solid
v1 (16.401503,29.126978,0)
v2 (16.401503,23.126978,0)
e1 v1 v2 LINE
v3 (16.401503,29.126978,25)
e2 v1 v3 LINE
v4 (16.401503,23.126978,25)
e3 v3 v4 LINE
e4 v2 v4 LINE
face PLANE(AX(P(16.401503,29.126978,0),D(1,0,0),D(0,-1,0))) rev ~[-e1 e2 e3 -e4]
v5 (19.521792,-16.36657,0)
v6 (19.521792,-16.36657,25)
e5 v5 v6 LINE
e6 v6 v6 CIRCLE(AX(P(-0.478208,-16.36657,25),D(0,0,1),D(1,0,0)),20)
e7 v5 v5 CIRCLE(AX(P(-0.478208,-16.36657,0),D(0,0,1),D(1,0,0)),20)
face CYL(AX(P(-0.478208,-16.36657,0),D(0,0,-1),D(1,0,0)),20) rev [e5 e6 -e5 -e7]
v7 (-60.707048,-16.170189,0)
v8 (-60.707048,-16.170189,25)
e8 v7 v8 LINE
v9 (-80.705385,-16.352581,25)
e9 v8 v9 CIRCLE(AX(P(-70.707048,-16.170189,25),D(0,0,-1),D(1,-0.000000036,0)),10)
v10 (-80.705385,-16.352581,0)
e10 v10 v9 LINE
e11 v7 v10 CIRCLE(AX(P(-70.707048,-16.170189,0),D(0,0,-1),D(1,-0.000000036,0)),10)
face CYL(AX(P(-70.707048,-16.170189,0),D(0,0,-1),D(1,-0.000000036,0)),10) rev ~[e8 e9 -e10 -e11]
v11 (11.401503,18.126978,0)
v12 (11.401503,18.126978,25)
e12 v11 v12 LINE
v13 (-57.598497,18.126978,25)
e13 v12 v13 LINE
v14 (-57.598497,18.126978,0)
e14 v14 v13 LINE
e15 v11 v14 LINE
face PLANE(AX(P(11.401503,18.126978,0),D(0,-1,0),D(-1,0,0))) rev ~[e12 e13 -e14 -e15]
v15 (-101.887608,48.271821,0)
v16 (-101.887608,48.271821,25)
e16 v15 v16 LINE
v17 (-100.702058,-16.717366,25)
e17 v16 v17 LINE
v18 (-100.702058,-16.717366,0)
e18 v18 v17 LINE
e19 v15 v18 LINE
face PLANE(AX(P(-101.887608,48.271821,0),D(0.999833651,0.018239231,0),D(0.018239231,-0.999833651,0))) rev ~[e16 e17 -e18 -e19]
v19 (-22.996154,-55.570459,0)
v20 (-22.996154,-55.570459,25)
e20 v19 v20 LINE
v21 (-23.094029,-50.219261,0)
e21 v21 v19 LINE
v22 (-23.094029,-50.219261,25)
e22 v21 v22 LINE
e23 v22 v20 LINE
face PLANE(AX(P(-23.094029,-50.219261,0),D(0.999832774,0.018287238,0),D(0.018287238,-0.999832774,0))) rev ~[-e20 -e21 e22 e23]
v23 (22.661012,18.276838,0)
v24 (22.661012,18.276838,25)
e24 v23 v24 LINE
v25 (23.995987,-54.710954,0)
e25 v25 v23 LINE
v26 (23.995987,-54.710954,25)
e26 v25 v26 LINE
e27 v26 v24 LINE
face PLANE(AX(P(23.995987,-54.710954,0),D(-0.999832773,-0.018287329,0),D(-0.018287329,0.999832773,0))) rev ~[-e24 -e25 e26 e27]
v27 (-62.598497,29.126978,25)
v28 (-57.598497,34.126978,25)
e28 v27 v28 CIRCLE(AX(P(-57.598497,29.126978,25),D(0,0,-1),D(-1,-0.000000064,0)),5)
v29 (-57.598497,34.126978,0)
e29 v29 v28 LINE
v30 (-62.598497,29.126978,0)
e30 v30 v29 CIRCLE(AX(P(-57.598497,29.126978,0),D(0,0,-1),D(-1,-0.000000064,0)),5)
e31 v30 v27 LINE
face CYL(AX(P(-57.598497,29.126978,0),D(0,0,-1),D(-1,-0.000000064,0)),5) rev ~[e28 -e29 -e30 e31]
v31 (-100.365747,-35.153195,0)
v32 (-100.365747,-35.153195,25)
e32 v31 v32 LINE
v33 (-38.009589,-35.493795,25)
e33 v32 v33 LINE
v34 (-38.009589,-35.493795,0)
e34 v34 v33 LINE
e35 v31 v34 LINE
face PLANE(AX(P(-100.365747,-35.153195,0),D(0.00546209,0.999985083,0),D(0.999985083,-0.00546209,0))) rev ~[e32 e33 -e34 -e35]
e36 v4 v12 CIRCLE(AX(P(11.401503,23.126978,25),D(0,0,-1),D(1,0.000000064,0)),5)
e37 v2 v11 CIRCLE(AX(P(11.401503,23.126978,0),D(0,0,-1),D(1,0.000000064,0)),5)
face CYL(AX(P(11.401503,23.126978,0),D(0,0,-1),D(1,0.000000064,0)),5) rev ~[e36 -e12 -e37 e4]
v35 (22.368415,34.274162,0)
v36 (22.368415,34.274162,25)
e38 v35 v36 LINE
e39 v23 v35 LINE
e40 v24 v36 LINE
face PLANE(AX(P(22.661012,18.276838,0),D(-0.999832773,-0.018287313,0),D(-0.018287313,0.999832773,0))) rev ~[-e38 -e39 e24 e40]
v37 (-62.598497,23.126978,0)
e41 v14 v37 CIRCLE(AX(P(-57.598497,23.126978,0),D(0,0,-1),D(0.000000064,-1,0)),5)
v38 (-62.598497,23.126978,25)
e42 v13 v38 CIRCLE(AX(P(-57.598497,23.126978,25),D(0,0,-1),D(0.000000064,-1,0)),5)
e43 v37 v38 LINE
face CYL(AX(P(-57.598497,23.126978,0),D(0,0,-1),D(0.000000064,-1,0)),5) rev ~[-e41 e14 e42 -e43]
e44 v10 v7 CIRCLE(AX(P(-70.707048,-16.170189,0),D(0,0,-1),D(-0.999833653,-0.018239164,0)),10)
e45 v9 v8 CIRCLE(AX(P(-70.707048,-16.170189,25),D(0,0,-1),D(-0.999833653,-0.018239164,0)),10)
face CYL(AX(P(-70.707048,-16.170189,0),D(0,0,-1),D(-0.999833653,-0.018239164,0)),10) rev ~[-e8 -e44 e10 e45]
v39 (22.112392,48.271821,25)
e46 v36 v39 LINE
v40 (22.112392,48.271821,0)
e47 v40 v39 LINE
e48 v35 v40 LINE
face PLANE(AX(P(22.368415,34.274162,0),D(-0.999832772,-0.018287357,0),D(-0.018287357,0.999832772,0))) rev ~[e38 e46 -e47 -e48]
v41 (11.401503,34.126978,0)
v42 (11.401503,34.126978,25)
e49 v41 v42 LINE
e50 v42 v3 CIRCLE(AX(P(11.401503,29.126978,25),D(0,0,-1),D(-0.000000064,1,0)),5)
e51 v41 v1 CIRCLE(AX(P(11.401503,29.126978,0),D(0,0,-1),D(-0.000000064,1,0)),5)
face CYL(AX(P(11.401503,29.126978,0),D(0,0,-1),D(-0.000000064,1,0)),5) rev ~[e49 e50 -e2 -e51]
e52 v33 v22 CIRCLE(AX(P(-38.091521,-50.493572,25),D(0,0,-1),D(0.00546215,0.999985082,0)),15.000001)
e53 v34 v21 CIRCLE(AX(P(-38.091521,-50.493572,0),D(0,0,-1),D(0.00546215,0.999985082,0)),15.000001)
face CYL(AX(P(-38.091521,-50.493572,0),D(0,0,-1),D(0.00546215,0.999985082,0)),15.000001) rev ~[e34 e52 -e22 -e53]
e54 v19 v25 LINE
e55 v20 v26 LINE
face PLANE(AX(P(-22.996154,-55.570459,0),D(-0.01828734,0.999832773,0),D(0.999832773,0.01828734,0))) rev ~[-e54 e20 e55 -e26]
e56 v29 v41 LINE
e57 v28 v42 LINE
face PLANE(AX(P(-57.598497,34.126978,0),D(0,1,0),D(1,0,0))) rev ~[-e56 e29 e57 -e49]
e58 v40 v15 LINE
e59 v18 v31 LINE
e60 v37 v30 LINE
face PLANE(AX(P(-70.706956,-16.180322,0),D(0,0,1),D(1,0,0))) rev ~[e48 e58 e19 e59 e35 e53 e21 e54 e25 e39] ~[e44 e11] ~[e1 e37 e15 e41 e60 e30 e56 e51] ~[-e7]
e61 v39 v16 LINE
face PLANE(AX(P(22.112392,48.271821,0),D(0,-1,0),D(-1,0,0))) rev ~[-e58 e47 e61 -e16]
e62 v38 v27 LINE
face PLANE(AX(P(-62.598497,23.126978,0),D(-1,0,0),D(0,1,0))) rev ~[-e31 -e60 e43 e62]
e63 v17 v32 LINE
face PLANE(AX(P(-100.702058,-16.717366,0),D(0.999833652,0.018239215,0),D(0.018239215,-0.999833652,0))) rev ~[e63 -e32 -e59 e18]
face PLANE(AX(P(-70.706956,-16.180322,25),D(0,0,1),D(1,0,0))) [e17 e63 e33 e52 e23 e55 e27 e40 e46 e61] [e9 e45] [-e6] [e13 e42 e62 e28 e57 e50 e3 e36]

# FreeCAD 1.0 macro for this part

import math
import FreeCAD as App
import Part
import Sketcher
from FreeCAD import Vector
Q = App.Units.Quantity

doc = App.newDocument("Part")
body = doc.addObject("PartDesign::Body", "Body")

sketch1 = doc.addObject("Sketcher::SketchObject", "Sketch")
body.addObject(sketch1)
sketch1.AttachmentSupport = (doc.XY_Plane, [""])
sketch1.MapMode = "FlatFace"
sketch1.addGeometry(Part.LineSegment(Vector(-101.9, 48.3, 0), Vector(-100.7, -16.7, 0)), False)
sketch1.addGeometry(Part.LineSegment(Vector(-100.7, -16.7, 0), Vector(-100.4, -35.2, 0)), False)
sketch1.addGeometry(Part.LineSegment(Vector(-100.4, -35.2, 0), Vector(-38, -35.5, 0)), False)
sketch1.addGeometry(Part.ArcOfCircle(Part.Circle(Vector(-38.1, -50.5, 0), Vector(0, 0, 1), 15), math.radians(1), math.radians(90)), False)
sketch1.addGeometry(Part.LineSegment(Vector(-23.1, -50.2, 0), Vector(-23, -55.6, 0)), False)
sketch1.addGeometry(Part.LineSegment(Vector(-23, -55.6, 0), Vector(24, -54.7, 0)), False)
sketch1.addGeometry(Part.LineSegment(Vector(24, -54.7, 0), Vector(22.7, 18.3, 0)), False)
sketch1.addGeometry(Part.LineSegment(Vector(22.7, 18.3, 0), Vector(22.4, 34.3, 0)), False)
sketch1.addGeometry(Part.LineSegment(Vector(22.4, 34.3, 0), Vector(22.1, 48.3, 0)), False)
sketch1.addGeometry(Part.LineSegment(Vector(22.1, 48.3, 0), Vector(-101.9, 48.3, 0)), False)
sketch1.addGeometry(Part.ArcOfCircle(Part.Circle(Vector(-70.7, -16.2, 0), Vector(0, 0, 1), 10), math.radians(0), math.radians(181)), False)
sketch1.addGeometry(Part.ArcOfCircle(Part.Circle(Vector(-70.7, -16.2, 0), Vector(0, 0, 1), 10), math.radians(-179), math.radians(0)), False)
sketch1.addGeometry(Part.Circle(Vector(-0.5, -16.4, 0), Vector(0, 0, 1), 20), False)
sketch1.addGeometry(Part.LineSegment(Vector(-57.6, 34.1, 0), Vector(11.4, 34.1, 0)), False)
sketch1.addGeometry(Part.ArcOfCircle(Part.Circle(Vector(11.4, 29.1, 0), Vector(0, 0, 1), 5), math.radians(0), math.radians(90)), False)
sketch1.addGeometry(Part.LineSegment(Vector(16.4, 29.1, 0), Vector(16.4, 23.1, 0)), False)
sketch1.addGeometry(Part.ArcOfCircle(Part.Circle(Vector(11.4, 23.1, 0), Vector(0, 0, 1), 5), math.radians(-90), math.radians(0)), False)
sketch1.addGeometry(Part.LineSegment(Vector(11.4, 18.1, 0), Vector(-57.6, 18.1, 0)), False)
sketch1.addGeometry(Part.ArcOfCircle(Part.Circle(Vector(-57.6, 23.1, 0), Vector(0, 0, 1), 5), math.radians(180), math.radians(270)), False)
sketch1.addGeometry(Part.LineSegment(Vector(-62.6, 23.1, 0), Vector(-62.6, 29.1, 0)), False)
sketch1.addGeometry(Part.ArcOfCircle(Part.Circle(Vector(-57.6, 29.1, 0), Vector(0, 0, 1), 5), math.radians(90), math.radians(180)), False)
sketch1.addConstraint(Sketcher.Constraint("Coincident", 0, 2, 1, 1))
sketch1.addConstraint(Sketcher.Constraint("Coincident", 1, 2, 2, 1))
sketch1.addConstraint(Sketcher.Constraint("Tangent", 2, 2, 3, 2))
sketch1.addConstraint(Sketcher.Constraint("Tangent", 3, 1, 4, 1))
sketch1.addConstraint(Sketcher.Constraint("Coincident", 4, 2, 5, 1))
sketch1.addConstraint(Sketcher.Constraint("Coincident", 5, 2, 6, 1))
sketch1.addConstraint(Sketcher.Constraint("Coincident", 6, 2, 7, 1))
sketch1.addConstraint(Sketcher.Constraint("Coincident", 7, 2, 8, 1))
sketch1.addConstraint(Sketcher.Constraint("Coincident", 8, 2, 9, 1))
sketch1.addConstraint(Sketcher.Constraint("Coincident", 9, 2, 0, 1))
sketch1.addConstraint(Sketcher.Constraint("Tangent", 10, 1, 11, 2))
sketch1.addConstraint(Sketcher.Constraint("Coincident", 11, 1, 10, 2))
sketch1.addConstraint(Sketcher.Constraint("Tangent", 13, 2, 14, 2))
sketch1.addConstraint(Sketcher.Constraint("Tangent", 14, 1, 15, 1))
sketch1.addConstraint(Sketcher.Constraint("Tangent", 15, 2, 16, 2))
sketch1.addConstraint(Sketcher.Constraint("Tangent", 16, 1, 17, 1))
sketch1.addConstraint(Sketcher.Constraint("Tangent", 17, 2, 18, 2))
sketch1.addConstraint(Sketcher.Constraint("Tangent", 18, 1, 19, 1))
sketch1.addConstraint(Sketcher.Constraint("Tangent", 19, 2, 20, 2))
sketch1.addConstraint(Sketcher.Constraint("Tangent", 20, 1, 13, 1))
sketch1.addConstraint(Sketcher.Constraint("Horizontal", 9))
sketch1.addConstraint(Sketcher.Constraint("Horizontal", 13))
sketch1.addConstraint(Sketcher.Constraint("Vertical", 15))
sketch1.addConstraint(Sketcher.Constraint("Horizontal", 17))
sketch1.addConstraint(Sketcher.Constraint("Vertical", 19))
sketch1.addConstraint(Sketcher.Constraint("Equal", 14, 16))
sketch1.addConstraint(Sketcher.Constraint("Equal", 16, 18))
sketch1.addConstraint(Sketcher.Constraint("Equal", 18, 20))
sketch1.addConstraint(Sketcher.Constraint("Parallel", 0, 1))
sketch1.addConstraint(Sketcher.Constraint("Perpendicular", 4, 5))
sketch1.addConstraint(Sketcher.Constraint("Perpendicular", 5, 6))
sketch1.addConstraint(Sketcher.Constraint("Parallel", 6, 7))
sketch1.addConstraint(Sketcher.Constraint("Parallel", 7, 8))
sketch1.addConstraint(Sketcher.Constraint("Horizontal", 11, 3, 10, 1))
sketch1.addConstraint(Sketcher.Constraint("Diameter", 12, Q("40 mm")))
sketch1.addConstraint(Sketcher.Constraint("Radius", 3, Q("15.000001 mm")))
sketch1.addConstraint(Sketcher.Constraint("Radius", 10, Q("10 mm")))
sketch1.addConstraint(Sketcher.Constraint("Radius", 14, Q("5 mm")))
sketch1.addConstraint(Sketcher.Constraint("DistanceX", 9, 2, 9, 1, Q("124 mm")))
sketch1.addConstraint(Sketcher.Constraint("DistanceX", 13, 1, 13, 2, Q("69 mm")))
sketch1.addConstraint(Sketcher.Constraint("DistanceY", 15, 2, 15, 1, Q("6 mm")))
sketch1.addConstraint(Sketcher.Constraint("Distance", 0, Q("65 mm")))
sketch1.addConstraint(Sketcher.Constraint("Distance", 5, Q("47.000001 mm")))
sketch1.addConstraint(Sketcher.Constraint("Distance", 6, Q("73 mm")))
sketch1.addConstraint(Sketcher.Constraint("Distance", 7, Q("16 mm")))
sketch1.addConstraint(Sketcher.Constraint("Distance", 8, Q("14 mm")))
sketch1.addConstraint(Sketcher.Constraint("DistanceY", 3, 3, 12, 3, Q("34.127002 mm")))
sketch1.addConstraint(Sketcher.Constraint("DistanceX", 1, 2, 10, 3, Q("29.658699 mm")))
sketch1.addConstraint(Sketcher.Constraint("DistanceY", 4, 2, 3, 1, Q("5.351198 mm")))
sketch1.addConstraint(Sketcher.Constraint("DistanceX", 12, 3, 8, 2, Q("22.5906 mm")))
sketch1.addConstraint(Sketcher.Constraint("Distance", 2, Q("62.357088 mm")))
sketch1.addConstraint(Sketcher.Constraint("DistanceX", 3, 3, -1, 1, Q("38.091521 mm")))
sketch1.addConstraint(Sketcher.Constraint("DistanceY", 3, 3, -1, 1, Q("50.493572 mm")))
sketch1.addConstraint(Sketcher.Constraint("DistanceX", 10, 3, -1, 1, Q("70.707048 mm")))
sketch1.addConstraint(Sketcher.Constraint("DistanceY", 10, 3, -1, 1, Q("16.170189 mm")))
sketch1.addConstraint(Sketcher.Constraint("DistanceY", -1, 1, 14, 3, Q("29.126978 mm")))
sketch1.addConstraint(Sketcher.Constraint("DistanceY", 3, 1, -1, 1, Q("50.219261 mm")))
sketch1.addConstraint(Sketcher.Constraint("DistanceY", 11, 1, -1, 1, Q("16.352581 mm")))
sketch1.addConstraint(Sketcher.Constraint("DistanceX", 12, 3, 14, 3, Q("11.879711 mm")))
pad1 = doc.addObject("PartDesign::Pad", "Pad")
body.addObject(pad1)
pad1.Profile = sketch1
pad1.Length = 25

doc.recompute()
